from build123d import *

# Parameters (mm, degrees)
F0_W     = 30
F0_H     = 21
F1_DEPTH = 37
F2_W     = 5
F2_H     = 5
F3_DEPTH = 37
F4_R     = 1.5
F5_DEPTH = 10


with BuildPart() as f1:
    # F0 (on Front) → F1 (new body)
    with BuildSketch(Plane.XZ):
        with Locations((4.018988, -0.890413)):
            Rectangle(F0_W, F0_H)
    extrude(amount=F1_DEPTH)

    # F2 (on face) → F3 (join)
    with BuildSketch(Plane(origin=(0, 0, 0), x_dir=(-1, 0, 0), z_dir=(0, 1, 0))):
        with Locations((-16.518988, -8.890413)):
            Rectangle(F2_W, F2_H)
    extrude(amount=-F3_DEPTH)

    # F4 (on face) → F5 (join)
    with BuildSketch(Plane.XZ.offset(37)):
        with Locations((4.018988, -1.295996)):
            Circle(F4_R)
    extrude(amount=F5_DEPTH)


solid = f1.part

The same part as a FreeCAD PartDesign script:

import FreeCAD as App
import Part
import Sketcher

V = App.Vector

doc = App.newDocument("Part")
params = doc.addObject("Spreadsheet::Sheet", "Params")
for row, (alias, value) in enumerate([
    ("sketch1_width", "30 mm"),
    ("sketch1_height", "21 mm"),
    ("pad1_length", "37 mm"),
    ("sketch2_width", "5 mm"),
    ("pad2_length", "37 mm"),
    ("sketch3_diameter", "3 mm"),
    ("pad3_length", "10 mm"),
], start=1):
    params.set(f"A{row}", alias)
    params.set(f"B{row}", "=" + value)
    params.setAlias(f"B{row}", alias)

body = doc.addObject("PartDesign::Body", "Body")

sketch1 = body.newObject("Sketcher::SketchObject", "Sketch")
sketch1.AttachmentSupport = (doc.getObject("XZ_Plane"), [""])
sketch1.MapMode = "FlatFace"
sketch1.addGeometry([
    Part.LineSegment(V(-11, 10, 0), V(-11, -11, 0)),
    Part.LineSegment(V(-11, -11, 0), V(19, -11, 0)),
    Part.LineSegment(V(19, -11, 0), V(19, 10, 0)),
    Part.LineSegment(V(19, 10, 0), V(-11, 10, 0)),
], False)
sketch1.addConstraint([
    Sketcher.Constraint("Coincident", 0, 2, 1, 1),
    Sketcher.Constraint("Coincident", 1, 2, 2, 1),
    Sketcher.Constraint("Coincident", 2, 2, 3, 1),
    Sketcher.Constraint("Coincident", 3, 2, 0, 1),
    Sketcher.Constraint("Vertical", 0),
    Sketcher.Constraint("Horizontal", 1),
    Sketcher.Constraint("Vertical", 2),
    Sketcher.Constraint("Horizontal", 3),
    Sketcher.Constraint("DistanceX", 1, 1, 1, 2, 30.0),
    Sketcher.Constraint("DistanceY", 0, 2, 0, 1, 21.0),
    Sketcher.Constraint("DistanceX", -1, 1, 1, 2, 19.018988),
    Sketcher.Constraint("DistanceY", 0, 2, -1, 1, 11.390413),
])
sketch1.setExpression("Constraints[8]", "Params.sketch1_width")
sketch1.setExpression("Constraints[9]", "Params.sketch1_height")
pad1 = body.newObject("PartDesign::Pad", "Pad")
pad1.Profile = sketch1
pad1.setExpression("Length", "Params.pad1_length")

sketch2 = body.newObject("Sketcher::SketchObject", "Sketch001")
sketch2.AttachmentSupport = (doc.getObject("XZ_Plane"), [""])
sketch2.MapMode = "FlatFace"
sketch2.addGeometry([
    Part.LineSegment(V(19, -6, 0), V(19, -11, 0)),
    Part.LineSegment(V(19, -11, 0), V(14, -11, 0)),
    Part.LineSegment(V(14, -11, 0), V(14, -6, 0)),
    Part.LineSegment(V(14, -6, 0), V(19, -6, 0)),
], False)
sketch2.addConstraint([
    Sketcher.Constraint("Coincident", 0, 2, 1, 1),
    Sketcher.Constraint("Coincident", 1, 2, 2, 1),
    Sketcher.Constraint("Coincident", 2, 2, 3, 1),
    Sketcher.Constraint("Coincident", 3, 2, 0, 1),
    Sketcher.Constraint("Vertical", 0),
    Sketcher.Constraint("Horizontal", 1),
    Sketcher.Constraint("Vertical", 2),
    Sketcher.Constraint("Horizontal", 3),
    Sketcher.Constraint("Equal", 3, 0),
    Sketcher.Constraint("DistanceX", 1, 2, 1, 1, 5.0),
    Sketcher.Constraint("DistanceX", -1, 1, 0, 2, 19.018988),
    Sketcher.Constraint("DistanceY", 0, 2, -1, 1, 11.390413),
])
sketch2.setExpression("Constraints[9]", "Params.sketch2_width")
pad2 = body.newObject("PartDesign::Pad", "Pad001")
pad2.Profile = sketch2
pad2.setExpression("Length", "Params.pad2_length")

sketch3 = body.newObject("Sketcher::SketchObject", "Sketch002")
sketch3.AttachmentSupport = (doc.getObject("XZ_Plane"), [""])
sketch3.MapMode = "FlatFace"
sketch3.AttachmentOffset = App.Placement(V(0, 0, 37), App.Rotation())
sketch3.addGeometry(Part.Circle(V(4, -1.3, 0), V(0, 0, 1), 1.5), False)
sketch3.addConstraint([
    Sketcher.Constraint("Diameter", 0, 3.0),
    Sketcher.Constraint("DistanceX", -1, 1, 0, 3, 4.018988),
    Sketcher.Constraint("DistanceY", 0, 3, -1, 1, 1.295996),
])
sketch3.setExpression("Constraints[0]", "Params.sketch3_diameter")
pad3 = body.newObject("PartDesign::Pad", "Pad002")
pad3.Profile = sketch3
pad3.setExpression("Length", "Params.pad3_length")

doc.recompute()
